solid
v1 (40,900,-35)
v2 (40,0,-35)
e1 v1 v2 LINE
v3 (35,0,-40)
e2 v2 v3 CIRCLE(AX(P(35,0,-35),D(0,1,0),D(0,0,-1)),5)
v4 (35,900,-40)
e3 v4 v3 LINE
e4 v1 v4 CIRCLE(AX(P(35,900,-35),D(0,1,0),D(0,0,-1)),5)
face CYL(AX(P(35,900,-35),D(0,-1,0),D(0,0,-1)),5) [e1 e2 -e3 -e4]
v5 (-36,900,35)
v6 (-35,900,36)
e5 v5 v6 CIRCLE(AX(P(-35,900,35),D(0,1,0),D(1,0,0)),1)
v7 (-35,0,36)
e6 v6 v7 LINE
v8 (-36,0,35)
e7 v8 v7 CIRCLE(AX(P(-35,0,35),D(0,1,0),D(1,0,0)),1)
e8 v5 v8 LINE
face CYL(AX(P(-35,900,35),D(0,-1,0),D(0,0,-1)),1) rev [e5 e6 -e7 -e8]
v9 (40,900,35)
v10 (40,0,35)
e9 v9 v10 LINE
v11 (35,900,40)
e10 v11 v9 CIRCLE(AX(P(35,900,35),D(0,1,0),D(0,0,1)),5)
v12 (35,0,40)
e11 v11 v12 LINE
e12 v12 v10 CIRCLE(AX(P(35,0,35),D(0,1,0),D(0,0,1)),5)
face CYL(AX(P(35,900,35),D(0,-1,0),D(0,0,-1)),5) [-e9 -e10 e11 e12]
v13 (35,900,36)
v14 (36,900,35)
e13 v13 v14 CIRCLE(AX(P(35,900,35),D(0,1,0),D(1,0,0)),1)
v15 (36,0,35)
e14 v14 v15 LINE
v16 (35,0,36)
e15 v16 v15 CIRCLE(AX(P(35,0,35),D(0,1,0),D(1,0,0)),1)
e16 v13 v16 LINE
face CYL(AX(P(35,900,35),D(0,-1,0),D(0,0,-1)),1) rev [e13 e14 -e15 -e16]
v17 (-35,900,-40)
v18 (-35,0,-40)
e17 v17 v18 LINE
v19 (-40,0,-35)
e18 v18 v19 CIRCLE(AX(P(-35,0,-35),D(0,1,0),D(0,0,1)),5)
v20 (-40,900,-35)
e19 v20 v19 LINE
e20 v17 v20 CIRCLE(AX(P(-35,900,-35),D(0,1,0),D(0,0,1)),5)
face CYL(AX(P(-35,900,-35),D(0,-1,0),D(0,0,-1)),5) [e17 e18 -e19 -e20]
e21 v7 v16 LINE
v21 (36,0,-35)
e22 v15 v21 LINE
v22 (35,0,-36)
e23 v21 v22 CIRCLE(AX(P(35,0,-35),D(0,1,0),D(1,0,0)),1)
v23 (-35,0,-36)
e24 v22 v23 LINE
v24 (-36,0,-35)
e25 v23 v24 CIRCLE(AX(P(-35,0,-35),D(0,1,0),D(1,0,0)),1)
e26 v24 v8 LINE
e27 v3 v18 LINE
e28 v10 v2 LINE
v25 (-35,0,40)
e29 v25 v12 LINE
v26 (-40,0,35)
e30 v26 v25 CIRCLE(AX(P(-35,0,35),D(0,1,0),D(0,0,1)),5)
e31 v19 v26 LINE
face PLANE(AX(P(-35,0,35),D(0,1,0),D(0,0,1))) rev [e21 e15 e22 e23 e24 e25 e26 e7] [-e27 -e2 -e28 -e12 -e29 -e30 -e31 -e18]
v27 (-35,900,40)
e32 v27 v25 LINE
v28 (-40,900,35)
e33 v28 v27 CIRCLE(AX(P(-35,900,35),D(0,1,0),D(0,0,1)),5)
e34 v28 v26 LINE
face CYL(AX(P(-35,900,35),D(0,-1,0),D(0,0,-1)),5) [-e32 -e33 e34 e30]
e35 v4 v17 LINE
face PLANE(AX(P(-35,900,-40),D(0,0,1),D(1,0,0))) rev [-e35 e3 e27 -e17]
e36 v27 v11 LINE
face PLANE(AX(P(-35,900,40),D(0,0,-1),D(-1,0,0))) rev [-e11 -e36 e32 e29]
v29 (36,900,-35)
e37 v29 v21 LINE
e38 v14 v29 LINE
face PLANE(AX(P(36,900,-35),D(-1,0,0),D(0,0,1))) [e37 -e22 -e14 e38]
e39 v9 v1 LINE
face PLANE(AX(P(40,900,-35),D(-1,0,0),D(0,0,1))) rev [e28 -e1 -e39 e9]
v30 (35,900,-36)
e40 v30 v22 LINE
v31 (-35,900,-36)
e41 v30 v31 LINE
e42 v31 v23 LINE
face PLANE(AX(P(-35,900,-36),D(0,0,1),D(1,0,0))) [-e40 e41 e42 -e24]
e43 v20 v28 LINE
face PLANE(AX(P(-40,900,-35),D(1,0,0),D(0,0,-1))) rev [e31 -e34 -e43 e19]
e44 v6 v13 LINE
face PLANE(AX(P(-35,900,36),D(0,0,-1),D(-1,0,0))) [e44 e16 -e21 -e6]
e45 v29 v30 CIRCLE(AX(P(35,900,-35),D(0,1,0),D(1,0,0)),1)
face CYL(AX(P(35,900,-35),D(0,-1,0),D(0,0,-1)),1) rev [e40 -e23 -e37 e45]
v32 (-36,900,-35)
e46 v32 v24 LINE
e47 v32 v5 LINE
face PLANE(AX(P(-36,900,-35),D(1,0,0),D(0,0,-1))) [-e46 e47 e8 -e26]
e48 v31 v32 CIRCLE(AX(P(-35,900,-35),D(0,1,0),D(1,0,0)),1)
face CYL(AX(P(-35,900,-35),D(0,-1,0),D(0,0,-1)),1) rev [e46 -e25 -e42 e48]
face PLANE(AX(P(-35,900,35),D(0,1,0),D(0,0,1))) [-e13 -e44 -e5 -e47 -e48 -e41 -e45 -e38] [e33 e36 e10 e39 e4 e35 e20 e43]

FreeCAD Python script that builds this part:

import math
import FreeCAD as App
import Part
import Sketcher
Q = App.Units.Quantity

doc = App.newDocument("Part")
body = doc.addObject("PartDesign::Body", "Body")

sketch1 = body.newObject("Sketcher::SketchObject", "Sketch")
sketch1.AttachmentSupport = (doc.getObject("XZ_Plane"), [""])
sketch1.MapMode = "FlatFace"
sketch1.addGeometry([
    Part.LineSegment(App.Vector(35, -40, 0), App.Vector(-35, -40, 0)),
    Part.ArcOfCircle(Part.Circle(App.Vector(-35, -35, 0), App.Vector(0, 0, 1), 5), math.radians(180), math.radians(270)),
    Part.LineSegment(App.Vector(-40, -35, 0), App.Vector(-40, 35, 0)),
    Part.ArcOfCircle(Part.Circle(App.Vector(-35, 35, 0), App.Vector(0, 0, 1), 5), math.radians(90), math.radians(180)),
    Part.LineSegment(App.Vector(-35, 40, 0), App.Vector(35, 40, 0)),
    Part.ArcOfCircle(Part.Circle(App.Vector(35, 35, 0), App.Vector(0, 0, 1), 5), math.radians(0), math.radians(90)),
    Part.LineSegment(App.Vector(40, 35, 0), App.Vector(40, -35, 0)),
    Part.ArcOfCircle(Part.Circle(App.Vector(35, -35, 0), App.Vector(0, 0, 1), 5), math.radians(-90), math.radians(0)),
    Part.LineSegment(App.Vector(-35, -36, 0), App.Vector(35, -36, 0)),
    Part.ArcOfCircle(Part.Circle(App.Vector(35, -35, 0), App.Vector(0, 0, 1), 1), math.radians(-90), math.radians(0)),
    Part.LineSegment(App.Vector(36, -35, 0), App.Vector(36, 35, 0)),
    Part.ArcOfCircle(Part.Circle(App.Vector(35, 35, 0), App.Vector(0, 0, 1), 1), math.radians(0), math.radians(90)),
    Part.LineSegment(App.Vector(35, 36, 0), App.Vector(-35, 36, 0)),
    Part.ArcOfCircle(Part.Circle(App.Vector(-35, 35, 0), App.Vector(0, 0, 1), 1), math.radians(90), math.radians(180)),
    Part.LineSegment(App.Vector(-36, 35, 0), App.Vector(-36, -35, 0)),
    Part.ArcOfCircle(Part.Circle(App.Vector(-35, -35, 0), App.Vector(0, 0, 1), 1), math.radians(-180), math.radians(-90)),
], False)
sketch1.addConstraint([
    Sketcher.Constraint("Tangent", 0, 2, 1, 2),
    Sketcher.Constraint("Tangent", 1, 1, 2, 1),
    Sketcher.Constraint("Tangent", 2, 2, 3, 2),
    Sketcher.Constraint("Tangent", 3, 1, 4, 1),
    Sketcher.Constraint("Tangent", 4, 2, 5, 2),
    Sketcher.Constraint("Tangent", 5, 1, 6, 1),
    Sketcher.Constraint("Tangent", 6, 2, 7, 2),
    Sketcher.Constraint("Tangent", 7, 1, 0, 1),
    Sketcher.Constraint("Tangent", 8, 2, 9, 1),
    Sketcher.Constraint("Tangent", 9, 2, 10, 1),
    Sketcher.Constraint("Tangent", 10, 2, 11, 1),
    Sketcher.Constraint("Tangent", 11, 2, 12, 1),
    Sketcher.Constraint("Tangent", 12, 2, 13, 1),
    Sketcher.Constraint("Tangent", 13, 2, 14, 1),
    Sketcher.Constraint("Tangent", 14, 2, 15, 1),
    Sketcher.Constraint("Tangent", 15, 2, 8, 1),
    Sketcher.Constraint("Horizontal", 0),
    Sketcher.Constraint("Vertical", 2),
    Sketcher.Constraint("Horizontal", 4),
    Sketcher.Constraint("Vertical", 6),
    Sketcher.Constraint("Horizontal", 8),
    Sketcher.Constraint("Vertical", 10),
    Sketcher.Constraint("Horizontal", 12),
    Sketcher.Constraint("Vertical", 14),
    Sketcher.Constraint("Coincident", 9, 3, 7, 3),
    Sketcher.Constraint("Coincident", 11, 3, 5, 3),
    Sketcher.Constraint("Coincident", 13, 3, 3, 3),
    Sketcher.Constraint("Equal", 1, 3),
    Sketcher.Constraint("Equal", 3, 5),
    Sketcher.Constraint("Equal", 5, 7),
    Sketcher.Constraint("Equal", 13, 15),
    Sketcher.Constraint("Symmetric", 1, 3, 5, 3, -1, 1),
    Sketcher.Constraint("Equal", 12, 2),
    Sketcher.Constraint("Radius", 1, Q("5 mm")),
    Sketcher.Constraint("Radius", 9, Q("1 mm")),
    Sketcher.Constraint("DistanceX", 0, 2, 0, 1, Q("70 mm")),
])
pad1 = body.newObject("PartDesign::Pad", "Pad")
pad1.Profile = sketch1
pad1.Length = 900
pad1.Reversed = True

doc.recompute()
